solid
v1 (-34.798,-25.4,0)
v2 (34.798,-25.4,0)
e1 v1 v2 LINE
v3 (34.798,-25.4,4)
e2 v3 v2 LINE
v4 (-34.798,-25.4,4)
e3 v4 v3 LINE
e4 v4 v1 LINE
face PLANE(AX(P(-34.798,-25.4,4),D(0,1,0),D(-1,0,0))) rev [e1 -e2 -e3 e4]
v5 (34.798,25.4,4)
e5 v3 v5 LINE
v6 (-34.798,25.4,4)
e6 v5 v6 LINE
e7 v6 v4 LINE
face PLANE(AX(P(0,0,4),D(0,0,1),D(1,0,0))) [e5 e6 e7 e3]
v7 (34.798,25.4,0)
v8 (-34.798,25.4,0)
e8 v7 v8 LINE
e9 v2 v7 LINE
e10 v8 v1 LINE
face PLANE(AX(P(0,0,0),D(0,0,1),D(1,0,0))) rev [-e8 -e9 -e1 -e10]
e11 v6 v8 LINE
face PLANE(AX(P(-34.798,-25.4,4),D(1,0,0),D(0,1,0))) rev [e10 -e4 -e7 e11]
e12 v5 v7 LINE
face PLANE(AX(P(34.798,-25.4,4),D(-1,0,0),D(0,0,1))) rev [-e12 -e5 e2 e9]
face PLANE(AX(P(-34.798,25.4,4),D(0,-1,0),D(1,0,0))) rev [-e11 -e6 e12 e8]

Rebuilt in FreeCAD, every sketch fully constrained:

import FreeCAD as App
import Part
import Sketcher

V = App.Vector
Q = App.Units.Quantity

doc = App.newDocument("Part")
params = doc.addObject("Spreadsheet::Sheet", "Params")
for row, (alias, value) in enumerate([
    ("sketch1_height", "2 in"),
    ("sketch1_width", "2.74 in"),
    ("pad1_length", "4 mm"),
], start=1):
    params.set(f"A{row}", alias)
    params.set(f"B{row}", "=" + value)
    params.setAlias(f"B{row}", alias)

body = doc.addObject("PartDesign::Body", "Body")

# Sketch on XY plane
sketch1 = body.newObject("Sketcher::SketchObject", "Sketch")
sketch1.AttachmentSupport = (doc.getObject("XY_Plane"), [""])
sketch1.MapMode = "FlatFace"
sketch1.addGeometry(Part.LineSegment(V(-35, 25, 0), V(-35, -25, 0)), False)
sketch1.addGeometry(Part.LineSegment(V(-35, -25, 0), V(35, -25, 0)), False)
sketch1.addGeometry(Part.LineSegment(V(35, -25, 0), V(35, 25, 0)), False)
sketch1.addGeometry(Part.LineSegment(V(35, 25, 0), V(-35, 25, 0)), False)
sketch1.addConstraint(Sketcher.Constraint("Coincident", 0, 2, 1, 1))
sketch1.addConstraint(Sketcher.Constraint("Coincident", 1, 2, 2, 1))
sketch1.addConstraint(Sketcher.Constraint("Coincident", 2, 2, 3, 1))
sketch1.addConstraint(Sketcher.Constraint("Coincident", 3, 2, 0, 1))
sketch1.addConstraint(Sketcher.Constraint("Vertical", 0))
sketch1.addConstraint(Sketcher.Constraint("Horizontal", 1))
sketch1.addConstraint(Sketcher.Constraint("Vertical", 2))
sketch1.addConstraint(Sketcher.Constraint("Horizontal", 3))
sketch1.addConstraint(Sketcher.Constraint("Symmetric", 0, 2, 2, 2, -1, 1))
sketch1.addConstraint(Sketcher.Constraint("DistanceY", 0, 2, 0, 1, Q("2 in")))
sketch1.addConstraint(Sketcher.Constraint("DistanceX", 1, 1, 1, 2, Q("2.74 in")))
sketch1.setExpression("Constraints[9]", "Params.sketch1_height")
sketch1.setExpression("Constraints[10]", "Params.sketch1_width")
pad1 = body.newObject("PartDesign::Pad", "Pad")
pad1.Profile = sketch1
pad1.setExpression("Length", "Params.pad1_length")

doc.recompute()
